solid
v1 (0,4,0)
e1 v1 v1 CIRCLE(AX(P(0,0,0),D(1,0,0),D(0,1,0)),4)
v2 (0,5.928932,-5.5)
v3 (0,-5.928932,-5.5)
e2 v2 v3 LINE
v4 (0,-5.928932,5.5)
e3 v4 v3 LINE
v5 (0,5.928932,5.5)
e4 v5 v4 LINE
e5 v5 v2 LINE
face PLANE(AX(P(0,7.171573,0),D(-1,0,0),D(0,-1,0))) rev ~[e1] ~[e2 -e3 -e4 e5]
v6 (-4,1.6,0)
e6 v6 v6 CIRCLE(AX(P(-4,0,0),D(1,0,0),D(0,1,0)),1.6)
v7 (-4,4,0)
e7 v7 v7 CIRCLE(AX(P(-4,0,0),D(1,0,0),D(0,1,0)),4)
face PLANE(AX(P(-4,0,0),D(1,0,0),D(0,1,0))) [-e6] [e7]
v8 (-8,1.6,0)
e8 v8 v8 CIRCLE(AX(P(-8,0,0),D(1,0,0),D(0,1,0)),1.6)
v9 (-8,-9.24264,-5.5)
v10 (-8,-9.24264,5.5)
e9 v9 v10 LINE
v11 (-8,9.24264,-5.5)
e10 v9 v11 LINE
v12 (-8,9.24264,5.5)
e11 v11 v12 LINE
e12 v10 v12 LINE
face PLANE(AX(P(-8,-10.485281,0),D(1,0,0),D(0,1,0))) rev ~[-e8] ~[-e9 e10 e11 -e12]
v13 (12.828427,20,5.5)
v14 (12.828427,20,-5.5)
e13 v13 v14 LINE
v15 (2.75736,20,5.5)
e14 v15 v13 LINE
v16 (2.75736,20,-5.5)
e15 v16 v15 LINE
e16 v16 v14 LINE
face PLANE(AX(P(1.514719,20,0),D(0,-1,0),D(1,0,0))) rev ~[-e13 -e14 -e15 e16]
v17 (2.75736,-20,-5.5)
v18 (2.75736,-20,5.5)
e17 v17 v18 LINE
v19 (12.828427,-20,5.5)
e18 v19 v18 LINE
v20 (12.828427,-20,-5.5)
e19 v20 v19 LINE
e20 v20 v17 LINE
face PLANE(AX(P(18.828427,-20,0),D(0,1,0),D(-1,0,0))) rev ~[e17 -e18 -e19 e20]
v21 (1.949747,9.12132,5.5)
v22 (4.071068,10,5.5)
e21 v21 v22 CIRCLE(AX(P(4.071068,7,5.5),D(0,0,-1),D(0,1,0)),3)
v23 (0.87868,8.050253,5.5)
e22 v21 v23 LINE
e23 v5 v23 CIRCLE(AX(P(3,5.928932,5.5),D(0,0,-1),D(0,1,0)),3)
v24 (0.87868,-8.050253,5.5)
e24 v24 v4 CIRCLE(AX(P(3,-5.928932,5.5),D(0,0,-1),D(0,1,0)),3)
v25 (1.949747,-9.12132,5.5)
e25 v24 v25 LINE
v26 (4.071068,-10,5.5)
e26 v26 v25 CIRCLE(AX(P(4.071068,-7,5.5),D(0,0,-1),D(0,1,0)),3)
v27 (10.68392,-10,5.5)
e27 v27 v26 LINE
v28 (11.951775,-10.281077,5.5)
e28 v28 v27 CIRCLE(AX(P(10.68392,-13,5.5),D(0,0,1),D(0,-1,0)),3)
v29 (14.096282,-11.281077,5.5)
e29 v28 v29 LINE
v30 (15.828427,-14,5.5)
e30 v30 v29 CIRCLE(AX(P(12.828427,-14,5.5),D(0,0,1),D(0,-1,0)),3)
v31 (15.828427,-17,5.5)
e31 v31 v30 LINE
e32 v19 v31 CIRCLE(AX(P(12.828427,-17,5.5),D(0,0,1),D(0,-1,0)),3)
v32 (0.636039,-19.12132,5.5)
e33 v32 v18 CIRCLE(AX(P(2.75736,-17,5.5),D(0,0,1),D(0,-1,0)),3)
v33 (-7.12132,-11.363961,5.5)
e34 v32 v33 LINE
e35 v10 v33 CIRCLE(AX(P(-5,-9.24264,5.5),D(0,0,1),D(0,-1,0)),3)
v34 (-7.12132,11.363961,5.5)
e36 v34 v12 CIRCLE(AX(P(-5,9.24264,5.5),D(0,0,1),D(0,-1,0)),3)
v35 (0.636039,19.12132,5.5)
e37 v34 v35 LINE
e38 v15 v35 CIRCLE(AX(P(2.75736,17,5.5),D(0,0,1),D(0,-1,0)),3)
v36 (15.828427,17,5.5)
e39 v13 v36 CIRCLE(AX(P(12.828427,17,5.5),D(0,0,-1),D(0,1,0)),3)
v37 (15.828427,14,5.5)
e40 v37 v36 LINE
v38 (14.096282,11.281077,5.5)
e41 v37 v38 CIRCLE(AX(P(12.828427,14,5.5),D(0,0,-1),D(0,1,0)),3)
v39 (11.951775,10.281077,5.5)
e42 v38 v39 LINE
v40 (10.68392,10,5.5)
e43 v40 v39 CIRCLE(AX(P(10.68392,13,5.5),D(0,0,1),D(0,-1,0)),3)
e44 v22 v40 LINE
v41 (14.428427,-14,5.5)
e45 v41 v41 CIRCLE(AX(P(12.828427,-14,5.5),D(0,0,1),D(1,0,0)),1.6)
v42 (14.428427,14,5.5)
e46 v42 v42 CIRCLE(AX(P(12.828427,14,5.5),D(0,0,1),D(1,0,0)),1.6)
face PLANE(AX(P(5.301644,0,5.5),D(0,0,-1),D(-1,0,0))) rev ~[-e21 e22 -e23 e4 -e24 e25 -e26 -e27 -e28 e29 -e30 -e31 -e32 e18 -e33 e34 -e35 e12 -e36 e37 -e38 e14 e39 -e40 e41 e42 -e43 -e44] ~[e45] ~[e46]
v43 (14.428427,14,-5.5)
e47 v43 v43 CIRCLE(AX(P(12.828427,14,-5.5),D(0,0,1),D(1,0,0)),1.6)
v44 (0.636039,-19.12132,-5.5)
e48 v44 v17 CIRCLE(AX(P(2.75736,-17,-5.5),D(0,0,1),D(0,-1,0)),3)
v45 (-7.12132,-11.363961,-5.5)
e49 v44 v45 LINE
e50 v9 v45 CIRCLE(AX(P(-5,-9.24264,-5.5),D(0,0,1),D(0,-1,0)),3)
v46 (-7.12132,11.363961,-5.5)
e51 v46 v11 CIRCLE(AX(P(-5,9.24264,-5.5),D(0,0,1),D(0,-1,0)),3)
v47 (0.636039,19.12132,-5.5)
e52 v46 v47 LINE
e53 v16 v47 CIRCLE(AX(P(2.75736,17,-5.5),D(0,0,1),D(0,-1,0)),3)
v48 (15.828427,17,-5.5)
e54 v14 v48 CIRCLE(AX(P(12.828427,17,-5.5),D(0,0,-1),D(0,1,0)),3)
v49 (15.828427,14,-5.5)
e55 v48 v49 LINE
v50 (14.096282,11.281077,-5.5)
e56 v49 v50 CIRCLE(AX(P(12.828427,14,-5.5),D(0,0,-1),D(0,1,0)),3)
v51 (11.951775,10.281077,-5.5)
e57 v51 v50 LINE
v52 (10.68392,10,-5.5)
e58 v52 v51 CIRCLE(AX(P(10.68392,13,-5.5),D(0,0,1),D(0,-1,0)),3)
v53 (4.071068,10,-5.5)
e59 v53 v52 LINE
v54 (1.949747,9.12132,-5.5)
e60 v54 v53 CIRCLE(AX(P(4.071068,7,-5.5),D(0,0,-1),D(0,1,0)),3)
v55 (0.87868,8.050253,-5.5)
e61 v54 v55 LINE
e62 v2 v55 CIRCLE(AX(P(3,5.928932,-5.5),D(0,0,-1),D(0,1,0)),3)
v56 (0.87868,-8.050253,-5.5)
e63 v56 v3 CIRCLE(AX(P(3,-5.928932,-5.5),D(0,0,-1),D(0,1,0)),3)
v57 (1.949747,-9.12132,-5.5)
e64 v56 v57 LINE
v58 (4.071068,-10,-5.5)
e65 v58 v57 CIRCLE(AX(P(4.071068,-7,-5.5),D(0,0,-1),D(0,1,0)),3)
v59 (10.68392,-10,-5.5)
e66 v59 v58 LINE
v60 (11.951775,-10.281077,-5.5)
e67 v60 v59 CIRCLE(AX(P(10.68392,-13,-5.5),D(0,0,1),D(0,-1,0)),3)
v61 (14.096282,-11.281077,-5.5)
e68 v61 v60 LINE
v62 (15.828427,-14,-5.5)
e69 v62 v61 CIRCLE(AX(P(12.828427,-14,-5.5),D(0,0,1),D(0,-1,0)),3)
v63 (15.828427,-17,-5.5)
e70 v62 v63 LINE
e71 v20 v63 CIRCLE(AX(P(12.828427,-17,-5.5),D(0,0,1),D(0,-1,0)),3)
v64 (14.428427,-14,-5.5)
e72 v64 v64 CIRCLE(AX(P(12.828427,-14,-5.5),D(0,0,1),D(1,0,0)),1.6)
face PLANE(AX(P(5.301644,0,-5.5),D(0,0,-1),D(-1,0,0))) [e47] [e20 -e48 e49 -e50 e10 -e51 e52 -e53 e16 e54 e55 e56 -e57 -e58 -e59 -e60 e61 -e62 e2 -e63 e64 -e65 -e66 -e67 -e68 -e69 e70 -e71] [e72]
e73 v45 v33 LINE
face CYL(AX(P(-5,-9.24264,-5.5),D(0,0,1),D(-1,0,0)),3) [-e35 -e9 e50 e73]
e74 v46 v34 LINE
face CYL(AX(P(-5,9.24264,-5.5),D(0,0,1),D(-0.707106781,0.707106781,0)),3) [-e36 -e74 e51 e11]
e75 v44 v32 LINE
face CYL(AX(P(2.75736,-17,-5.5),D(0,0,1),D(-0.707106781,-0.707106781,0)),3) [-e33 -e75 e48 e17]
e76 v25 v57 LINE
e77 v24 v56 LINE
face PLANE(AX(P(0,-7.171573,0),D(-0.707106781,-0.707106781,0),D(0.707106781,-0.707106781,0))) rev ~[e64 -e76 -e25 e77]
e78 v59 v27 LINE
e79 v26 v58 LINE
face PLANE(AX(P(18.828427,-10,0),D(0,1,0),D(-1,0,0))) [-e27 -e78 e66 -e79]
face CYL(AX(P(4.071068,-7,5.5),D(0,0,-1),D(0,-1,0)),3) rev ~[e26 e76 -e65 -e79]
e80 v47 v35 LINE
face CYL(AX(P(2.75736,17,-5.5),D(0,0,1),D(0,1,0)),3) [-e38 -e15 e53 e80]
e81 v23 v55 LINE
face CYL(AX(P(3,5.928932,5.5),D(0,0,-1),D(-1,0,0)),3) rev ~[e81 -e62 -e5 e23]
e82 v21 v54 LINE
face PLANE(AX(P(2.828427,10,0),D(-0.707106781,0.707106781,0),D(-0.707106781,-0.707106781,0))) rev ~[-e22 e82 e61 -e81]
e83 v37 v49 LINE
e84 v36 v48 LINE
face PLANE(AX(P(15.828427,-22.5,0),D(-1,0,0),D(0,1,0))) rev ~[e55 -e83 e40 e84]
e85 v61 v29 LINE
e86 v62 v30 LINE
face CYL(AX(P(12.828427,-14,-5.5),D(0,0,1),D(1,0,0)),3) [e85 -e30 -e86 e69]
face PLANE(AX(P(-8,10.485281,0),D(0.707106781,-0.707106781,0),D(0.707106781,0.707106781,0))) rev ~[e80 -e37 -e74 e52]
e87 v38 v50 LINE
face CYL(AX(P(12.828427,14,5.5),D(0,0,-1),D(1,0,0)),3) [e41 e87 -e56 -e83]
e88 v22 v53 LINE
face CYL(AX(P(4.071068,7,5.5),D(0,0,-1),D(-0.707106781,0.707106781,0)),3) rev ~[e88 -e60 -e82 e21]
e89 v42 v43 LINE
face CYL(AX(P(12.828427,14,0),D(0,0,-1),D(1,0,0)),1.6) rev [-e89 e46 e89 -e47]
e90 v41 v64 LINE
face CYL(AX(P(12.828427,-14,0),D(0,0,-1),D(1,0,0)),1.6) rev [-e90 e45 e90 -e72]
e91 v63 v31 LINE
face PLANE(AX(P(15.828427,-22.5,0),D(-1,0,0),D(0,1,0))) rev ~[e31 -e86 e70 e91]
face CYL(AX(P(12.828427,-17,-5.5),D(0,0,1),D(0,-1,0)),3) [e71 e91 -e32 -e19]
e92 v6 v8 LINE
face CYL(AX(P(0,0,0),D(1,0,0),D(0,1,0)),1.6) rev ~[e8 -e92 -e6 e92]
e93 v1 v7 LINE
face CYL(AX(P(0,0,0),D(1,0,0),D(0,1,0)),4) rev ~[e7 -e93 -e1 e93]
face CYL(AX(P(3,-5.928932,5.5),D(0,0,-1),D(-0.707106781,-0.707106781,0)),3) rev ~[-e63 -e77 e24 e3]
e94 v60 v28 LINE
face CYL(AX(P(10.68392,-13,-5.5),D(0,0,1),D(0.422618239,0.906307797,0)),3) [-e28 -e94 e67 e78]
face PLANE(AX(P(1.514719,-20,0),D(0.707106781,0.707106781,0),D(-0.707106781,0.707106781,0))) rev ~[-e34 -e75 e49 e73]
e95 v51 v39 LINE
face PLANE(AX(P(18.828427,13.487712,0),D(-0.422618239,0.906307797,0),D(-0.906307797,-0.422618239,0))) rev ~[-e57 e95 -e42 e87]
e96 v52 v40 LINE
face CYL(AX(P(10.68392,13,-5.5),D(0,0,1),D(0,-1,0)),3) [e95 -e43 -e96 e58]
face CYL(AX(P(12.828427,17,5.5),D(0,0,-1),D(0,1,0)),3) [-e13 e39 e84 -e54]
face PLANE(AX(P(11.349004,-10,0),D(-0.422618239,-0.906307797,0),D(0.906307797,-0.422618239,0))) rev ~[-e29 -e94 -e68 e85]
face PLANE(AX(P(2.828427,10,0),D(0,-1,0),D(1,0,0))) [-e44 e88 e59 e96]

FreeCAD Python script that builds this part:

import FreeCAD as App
import Part
import Sketcher
Q = App.Units.Quantity


def edges_at(feature, points):
    """Names of the edges that pass closest to the given points."""
    edges = feature.Shape.Edges
    near = lambda p: min(range(len(edges)), key=lambda i: edges[i].distToShape(Part.Vertex(*p))[0])
    return sorted({f"Edge{near(p) + 1}" for p in points})

doc = App.newDocument("Part")
body = doc.addObject("PartDesign::Body", "Body")

# Sketch on XY plane
sketch1 = body.newObject("Sketcher::SketchObject", "Sketch")
sketch1.AttachmentSupport = (doc.getObject("XY_Plane"), [""])
sketch1.MapMode = "FlatFace"
sketch1.addGeometry([
    Part.LineSegment(App.Vector(18.828427, 20, 0), App.Vector(1.514719, 20, 0)),  # 0
    Part.LineSegment(App.Vector(1.514719, 20, 0), App.Vector(-8, 10.485281, 0)),  # 1
    Part.LineSegment(App.Vector(-8, 10.485281, 0), App.Vector(-8, -10.485281, 0)),  # 2
    Part.LineSegment(App.Vector(-8, -10.485281, 0), App.Vector(1.514719, -20, 0)),  # 3
    Part.LineSegment(App.Vector(1.514719, -20, 0), App.Vector(18.828427, -20, 0)),  # 4
    Part.LineSegment(App.Vector(18.828427, -20, 0), App.Vector(18.828427, -10, 0)),  # 5
    Part.LineSegment(App.Vector(18.828427, -10, 0), App.Vector(2.828427, -10, 0)),  # 6
    Part.LineSegment(App.Vector(2.828427, -10, 0), App.Vector(0, -7.171573, 0)),  # 7
    Part.LineSegment(App.Vector(0, -7.171573, 0), App.Vector(0, 7.171573, 0)),  # 8
    Part.LineSegment(App.Vector(0, 7.171573, 0), App.Vector(2.828427, 10, 0)),  # 9
    Part.LineSegment(App.Vector(2.828427, 10, 0), App.Vector(18.828427, 10, 0)),  # 10
    Part.LineSegment(App.Vector(18.828427, 10, 0), App.Vector(18.828427, 20, 0)),  # 11
    Part.Circle(App.Vector(12.828427, -14, 0), App.Vector(0, 0, 1), 1.6),  # 12
    Part.Circle(App.Vector(12.828427, 14, 0), App.Vector(0, 0, 1), 1.6),  # 13
], False)
sketch1.addConstraint([
    Sketcher.Constraint("Coincident", 0, 2, 1, 1),
    Sketcher.Constraint("Coincident", 1, 2, 2, 1),
    Sketcher.Constraint("Coincident", 2, 2, 3, 1),
    Sketcher.Constraint("Coincident", 3, 2, 4, 1),
    Sketcher.Constraint("Coincident", 4, 2, 5, 1),
    Sketcher.Constraint("Coincident", 5, 2, 6, 1),
    Sketcher.Constraint("Coincident", 6, 2, 7, 1),
    Sketcher.Constraint("Coincident", 7, 2, 8, 1),
    Sketcher.Constraint("Coincident", 8, 2, 9, 1),
    Sketcher.Constraint("Coincident", 9, 2, 10, 1),
    Sketcher.Constraint("Coincident", 10, 2, 11, 1),
    Sketcher.Constraint("Coincident", 11, 2, 0, 1),
    Sketcher.Constraint("Horizontal", 0),
    Sketcher.Constraint("Vertical", 2),
    Sketcher.Constraint("Horizontal", 4),
    Sketcher.Constraint("Vertical", 5),
    Sketcher.Constraint("Horizontal", 6),
    Sketcher.Constraint("Vertical", 8),
    Sketcher.Constraint("Horizontal", 10),
    Sketcher.Constraint("Vertical", 11),
    Sketcher.Constraint("Equal", 12, 13),
    Sketcher.Constraint("Symmetric", 7, 2, 8, 2, -1, 1),
    Sketcher.Constraint("Symmetric", 12, 3, 13, 3, -1),
    Sketcher.Constraint("Symmetric", 0, 2, 3, 2, -1),
    Sketcher.Constraint("Symmetric", 6, 2, 9, 2, -1),
    Sketcher.Constraint("Perpendicular", 1, 3),
    Sketcher.Constraint("Parallel", 3, 7),
    Sketcher.Constraint("Perpendicular", 7, 9),
    Sketcher.Constraint("Vertical", 5, 2, 10, 2),
    Sketcher.Constraint("Diameter", 12, Q("3.2 mm")),
    Sketcher.Constraint("DistanceX", 6, 2, 6, 1, Q("16 mm")),
    Sketcher.Constraint("DistanceY", 5, 1, 5, 2, Q("10 mm")),
    Sketcher.Constraint("Distance", 7, Q("4 mm")),
    Sketcher.Constraint("DistanceY", 12, 3, -1, 1, Q("14 mm")),
    Sketcher.Constraint("DistanceY", -1, 1, 0, 2, Q("20 mm")),
    Sketcher.Constraint("DistanceX", 1, 2, -1, 1, Q("8 mm")),
    Sketcher.Constraint("DistanceX", 12, 3, 4, 2, Q("6 mm")),
    Sketcher.Constraint("DistanceX", 0, 2, 0, 1, Q("17.313708 mm")),
])
pad1 = body.newObject("PartDesign::Pad", "Pad")
pad1.Profile = sketch1
pad1.Length = 11
pad1.Midplane = True

# Sketch on YZ plane
sketch2 = body.newObject("Sketcher::SketchObject", "Sketch001")
sketch2.AttachmentSupport = (doc.getObject("YZ_Plane"), [""])
sketch2.MapMode = "FlatFace"
sketch2.addGeometry(Part.Circle(App.Vector(0, 0, 0), App.Vector(0, 0, 1), 1.6), False)
sketch2.addConstraint([
    Sketcher.Constraint("Coincident", 0, 3, -1, 1),
    Sketcher.Constraint("Diameter", 0, Q("3.2 mm")),
])
pocket1 = body.newObject("PartDesign::Pocket", "Pocket")
pocket1.Profile = sketch2
pocket1.Type = "ThroughAll"

# Sketch on XY plane
sketch3 = body.newObject("Sketcher::SketchObject", "Sketch002")
sketch3.AttachmentSupport = (doc.getObject("XY_Plane"), [""])
sketch3.MapMode = "FlatFace"
sketch3.addGeometry([
    Part.LineSegment(App.Vector(18.828427, 13.487712, 0), App.Vector(11.349004, 10, 0)),  # 0
    Part.LineSegment(App.Vector(11.349004, 10, 0), App.Vector(18.828427, 10, 0)),  # 1
    Part.LineSegment(App.Vector(18.828427, 10, 0), App.Vector(18.828427, 13.487712, 0)),  # 2
    Part.LineSegment(App.Vector(11.349004, -10, 0), App.Vector(18.828427, -13.487712, 0)),  # 3
    Part.LineSegment(App.Vector(18.828427, -13.487712, 0), App.Vector(18.828427, -10, 0)),  # 4
    Part.LineSegment(App.Vector(18.828427, -10, 0), App.Vector(11.349004, -10, 0)),  # 5
], False)
sketch3.addConstraint([
    Sketcher.Constraint("Coincident", 0, 2, 1, 1),
    Sketcher.Constraint("Coincident", 1, 2, 2, 1),
    Sketcher.Constraint("Coincident", 2, 2, 0, 1),
    Sketcher.Constraint("Coincident", 3, 2, 4, 1),
    Sketcher.Constraint("Coincident", 4, 2, 5, 1),
    Sketcher.Constraint("Coincident", 5, 2, 3, 1),
    Sketcher.Constraint("Horizontal", 1),
    Sketcher.Constraint("Vertical", 2),
    Sketcher.Constraint("Vertical", 4),
    Sketcher.Constraint("Horizontal", 5),
    Sketcher.Constraint("Symmetric", 2, 2, 3, 2, -1),
    Sketcher.Constraint("Symmetric", 0, 2, 5, 2, -1),
    Sketcher.Constraint("Angle", 0, Q("-155.000001 deg")),
    Sketcher.Constraint("DistanceY", -1, 1, 0, 2, Q("10 mm")),
    Sketcher.Constraint("Distance", 0, Q("8.25263 mm")),
    Sketcher.Constraint("DistanceX", -1, 1, 0, 2, Q("11.349004 mm")),
])
pocket2 = body.newObject("PartDesign::Pocket", "Pocket001")
pocket2.Profile = sketch3
pocket2.Type = "ThroughAll"
pocket2.Midplane = True

# Sketch on XY plane
sketch4 = body.newObject("Sketcher::SketchObject", "Sketch003")
sketch4.AttachmentSupport = (doc.getObject("XY_Plane"), [""])
sketch4.MapMode = "FlatFace"
sketch4.addGeometry([
    Part.LineSegment(App.Vector(15.828427, 22.5, 0), App.Vector(15.828427, -22.5, 0)),
    Part.LineSegment(App.Vector(15.828427, -22.5, 0), App.Vector(25.828427, -22.5, 0)),
    Part.LineSegment(App.Vector(25.828427, -22.5, 0), App.Vector(25.828427, 22.5, 0)),
    Part.LineSegment(App.Vector(25.828427, 22.5, 0), App.Vector(15.828427, 22.5, 0)),
], False)
sketch4.addConstraint([
    Sketcher.Constraint("Coincident", 0, 2, 1, 1),
    Sketcher.Constraint("Coincident", 1, 2, 2, 1),
    Sketcher.Constraint("Coincident", 2, 2, 3, 1),
    Sketcher.Constraint("Coincident", 3, 2, 0, 1),
    Sketcher.Constraint("Vertical", 0),
    Sketcher.Constraint("Horizontal", 1),
    Sketcher.Constraint("Vertical", 2),
    Sketcher.Constraint("Horizontal", 3),
    Sketcher.Constraint("DistanceX", 1, 1, 1, 2, Q("10 mm")),
    Sketcher.Constraint("DistanceY", 0, 2, 0, 1, Q("45 mm")),
    Sketcher.Constraint("DistanceY", 0, 2, -1, 1, Q("22.5 mm")),
    Sketcher.Constraint("DistanceX", -1, 1, 0, 2, Q("15.828427 mm")),
])
pocket3 = body.newObject("PartDesign::Pocket", "Pocket002")
pocket3.Profile = sketch4
pocket3.Type = "ThroughAll"
pocket3.Midplane = True

# Sketch on YZ plane
sketch5 = body.newObject("Sketcher::SketchObject", "Sketch004")
sketch5.AttachmentSupport = (doc.getObject("YZ_Plane"), [""])
sketch5.MapMode = "FlatFace"
sketch5.addGeometry(Part.Circle(App.Vector(0, 0, 0), App.Vector(0, 0, 1), 4), False)
sketch5.addConstraint([
    Sketcher.Constraint("Coincident", 0, 3, -1, 1),
    Sketcher.Constraint("Diameter", 0, Q("8 mm")),
])
pocket4 = body.newObject("PartDesign::Pocket", "Pocket003")
pocket4.Profile = sketch5
pocket4.Length = 4
doc.recompute()

fillet = body.newObject("PartDesign::Fillet", "Fillet")
fillet.Base = (pocket4, edges_at(pocket4, [
    (15.828, -20, 0),
    (15.828, -12.089, 0),
    (11.349, -10, 0),
    (2.828, -10, 0),
    (0, -7.172, 0),
    (0, 7.172, 0),
    (2.828, 10, 0),
    (11.349, 10, 0),
    (15.828, 12.089, 0),
    (15.828, 20, 0),
    (1.515, 20, 0),
    (-8, 10.485, 0),
    (-8, -10.485, 0),
    (1.515, -20, 0),
]))
fillet.Radius = 3

doc.recompute()
